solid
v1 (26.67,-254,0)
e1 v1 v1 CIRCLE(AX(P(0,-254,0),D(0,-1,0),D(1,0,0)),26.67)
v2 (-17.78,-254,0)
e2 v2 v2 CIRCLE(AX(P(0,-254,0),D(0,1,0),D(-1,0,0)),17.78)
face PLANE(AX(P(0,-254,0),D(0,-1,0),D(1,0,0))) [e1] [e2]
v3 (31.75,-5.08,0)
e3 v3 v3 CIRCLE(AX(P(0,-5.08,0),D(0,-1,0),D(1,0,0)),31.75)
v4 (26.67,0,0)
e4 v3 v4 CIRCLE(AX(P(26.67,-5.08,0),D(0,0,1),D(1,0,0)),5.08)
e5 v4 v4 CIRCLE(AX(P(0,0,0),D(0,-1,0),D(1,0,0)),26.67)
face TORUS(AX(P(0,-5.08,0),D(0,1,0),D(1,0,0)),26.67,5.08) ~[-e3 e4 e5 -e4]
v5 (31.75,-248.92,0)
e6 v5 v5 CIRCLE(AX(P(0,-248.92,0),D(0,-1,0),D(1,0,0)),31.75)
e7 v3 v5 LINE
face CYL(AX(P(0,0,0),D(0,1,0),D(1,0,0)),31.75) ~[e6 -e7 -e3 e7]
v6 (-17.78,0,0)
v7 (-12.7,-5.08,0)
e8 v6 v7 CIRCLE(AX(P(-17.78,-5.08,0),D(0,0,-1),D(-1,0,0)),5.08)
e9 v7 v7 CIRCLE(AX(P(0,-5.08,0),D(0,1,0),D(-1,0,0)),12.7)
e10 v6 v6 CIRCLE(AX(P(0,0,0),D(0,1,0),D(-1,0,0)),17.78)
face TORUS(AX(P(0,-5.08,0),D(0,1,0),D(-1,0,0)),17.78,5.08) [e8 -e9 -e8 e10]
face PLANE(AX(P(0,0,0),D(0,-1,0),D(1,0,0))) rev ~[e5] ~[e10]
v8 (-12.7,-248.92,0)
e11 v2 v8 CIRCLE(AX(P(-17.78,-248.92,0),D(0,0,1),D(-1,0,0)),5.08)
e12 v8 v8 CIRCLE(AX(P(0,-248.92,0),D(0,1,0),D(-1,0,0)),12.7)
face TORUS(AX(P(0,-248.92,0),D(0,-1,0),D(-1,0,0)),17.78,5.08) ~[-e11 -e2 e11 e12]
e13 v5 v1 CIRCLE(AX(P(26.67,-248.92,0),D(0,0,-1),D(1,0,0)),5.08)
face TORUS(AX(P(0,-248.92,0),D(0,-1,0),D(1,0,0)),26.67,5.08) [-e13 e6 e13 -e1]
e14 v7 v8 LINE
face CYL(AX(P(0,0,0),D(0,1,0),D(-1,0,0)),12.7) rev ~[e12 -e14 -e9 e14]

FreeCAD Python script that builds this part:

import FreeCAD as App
import Part
import Sketcher

V = App.Vector
Q = App.Units.Quantity


def edges_at(feature, points):
    """Names of the edges that pass closest to the given points."""
    edges = feature.Shape.Edges
    near = lambda p: min(range(len(edges)), key=lambda i: edges[i].distToShape(Part.Vertex(*p))[0])
    return sorted({f"Edge{near(p) + 1}" for p in points})

doc = App.newDocument("Part")
body = doc.addObject("PartDesign::Body", "Body")

sketch1 = body.newObject("Sketcher::SketchObject", "Sketch")
sketch1.AttachmentSupport = (doc.getObject("XZ_Plane"), [""])
sketch1.MapMode = "FlatFace"
sketch1.addGeometry(Part.Circle(V(0, 0, 0), V(0, 0, 1), 32), False)
sketch1.addConstraint(Sketcher.Constraint("Coincident", 0, 3, -1, 1))
sketch1.addConstraint(Sketcher.Constraint("Diameter", 0, Q("2.5 in")))
pad1 = body.newObject("PartDesign::Pad", "Pad")
pad1.Profile = sketch1
pad1.Length = Q("10 in")
doc.recompute()

fillet = body.newObject("PartDesign::Fillet", "Fillet")
fillet.Base = (pad1, edges_at(pad1, [(-31.75, -254, 0)]))
fillet.Radius = Q("0.2 in")
doc.recompute()

fillet2 = body.newObject("PartDesign::Fillet", "Fillet001")
fillet2.Base = (fillet, edges_at(fillet, [(-31.75, 0, 0)]))
fillet2.Radius = Q("0.2 in")

sketch2 = body.newObject("Sketcher::SketchObject", "Sketch001")
sketch2.AttachmentSupport = (doc.getObject("XZ_Plane"), [""])
sketch2.MapMode = "FlatFace"
sketch2.addGeometry(Part.Circle(V(0, 0, 0), V(0, 0, 1), 13), False)
sketch2.addConstraint(Sketcher.Constraint("Coincident", 0, 3, -1, 1))
sketch2.addConstraint(Sketcher.Constraint("Diameter", 0, Q("1 in")))
pocket1 = body.newObject("PartDesign::Pocket", "Pocket")
pocket1.Profile = sketch2
pocket1.Type = "ThroughAll"
pocket1.Reversed = True
doc.recompute()

fillet3 = body.newObject("PartDesign::Fillet", "Fillet002")
fillet3.Base = (pocket1, edges_at(pocket1, [(12.7, 0, 0), (-12.7, -127, 0), (12.7, -254, 0)]))
fillet3.Radius = Q("0.2 in")

doc.recompute()
